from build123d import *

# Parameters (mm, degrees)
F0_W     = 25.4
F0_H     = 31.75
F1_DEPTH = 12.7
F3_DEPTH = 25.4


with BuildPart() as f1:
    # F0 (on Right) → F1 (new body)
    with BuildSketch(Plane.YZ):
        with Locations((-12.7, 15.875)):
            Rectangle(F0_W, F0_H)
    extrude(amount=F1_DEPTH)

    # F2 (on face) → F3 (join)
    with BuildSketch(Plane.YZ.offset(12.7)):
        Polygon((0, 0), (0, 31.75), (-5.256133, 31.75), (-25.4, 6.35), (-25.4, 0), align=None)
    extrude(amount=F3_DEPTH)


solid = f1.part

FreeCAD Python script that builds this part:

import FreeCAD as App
import Part
import Sketcher
from FreeCAD import Vector
Q = App.Units.Quantity

doc = App.newDocument("Part")
body = doc.addObject("PartDesign::Body", "Body")

# Sketch on YZ plane
sketch1 = body.newObject("Sketcher::SketchObject", "Sketch")
sketch1.AttachmentSupport = (doc.getObject("YZ_Plane"), [""])
sketch1.MapMode = "FlatFace"
sketch1.addGeometry([
    Part.LineSegment(Vector(-25, 32, 0), Vector(-25, 0, 0)),
    Part.LineSegment(Vector(-25, 0, 0), Vector(0, 0, 0)),
    Part.LineSegment(Vector(0, 0, 0), Vector(0, 32, 0)),
    Part.LineSegment(Vector(0, 32, 0), Vector(-25, 32, 0)),
], False)
sketch1.addConstraint([
    Sketcher.Constraint("Coincident", 0, 2, 1, 1),
    Sketcher.Constraint("Coincident", 1, 2, 2, 1),
    Sketcher.Constraint("Coincident", 2, 2, 3, 1),
    Sketcher.Constraint("Coincident", 3, 2, 0, 1),
    Sketcher.Constraint("Vertical", 0),
    Sketcher.Constraint("Horizontal", 1),
    Sketcher.Constraint("Vertical", 2),
    Sketcher.Constraint("Horizontal", 3),
    Sketcher.Constraint("Coincident", 1, 2, -1, 1),
    Sketcher.Constraint("DistanceX", 1, 1, 1, 2, Q("1 in")),
    Sketcher.Constraint("DistanceY", 0, 2, 0, 1, Q("1.25 in")),
])
pad1 = body.newObject("PartDesign::Pad", "Pad")
pad1.Profile = sketch1
pad1.Length = Q("0.5 in")

# Sketch on YZ plane
sketch2 = body.newObject("Sketcher::SketchObject", "Sketch001")
sketch2.AttachmentSupport = (doc.getObject("YZ_Plane"), [""])
sketch2.MapMode = "FlatFace"
sketch2.AttachmentOffset = App.Placement(Vector(0, 0, 0.5 * 25.4), App.Rotation())
sketch2.addGeometry([
    Part.LineSegment(Vector(0, 0, 0), Vector(0, 32, 0)),  # 0
    Part.LineSegment(Vector(0, 32, 0), Vector(-5, 32, 0)),  # 1
    Part.LineSegment(Vector(-5, 32, 0), Vector(-25, 6, 0)),  # 2
    Part.LineSegment(Vector(-25, 6, 0), Vector(-25, 0, 0)),  # 3
    Part.LineSegment(Vector(-25, 0, 0), Vector(0, 0, 0)),  # 4
], False)
sketch2.addConstraint([
    Sketcher.Constraint("Coincident", 0, 2, 1, 1),
    Sketcher.Constraint("Coincident", 1, 2, 2, 1),
    Sketcher.Constraint("Coincident", 2, 2, 3, 1),
    Sketcher.Constraint("Coincident", 3, 2, 4, 1),
    Sketcher.Constraint("Coincident", 4, 2, 0, 1),
    Sketcher.Constraint("Vertical", 0),
    Sketcher.Constraint("Horizontal", 1),
    Sketcher.Constraint("Vertical", 3),
    Sketcher.Constraint("Horizontal", 4),
    Sketcher.Constraint("Coincident", 4, 2, -1, 1),
    Sketcher.Constraint("DistanceX", 4, 1, 4, 2, Q("1 in")),
    Sketcher.Constraint("DistanceY", 2, 2, 1, 2, Q("1 in")),
    Sketcher.Constraint("DistanceY", 0, 1, 0, 2, Q("1.25 in")),
    Sketcher.Constraint("DistanceX", 1, 2, 1, 1, Q("5.256133 mm")),
])
pad2 = body.newObject("PartDesign::Pad", "Pad001")
pad2.Profile = sketch2
pad2.Length = Q("1 in")

doc.recompute()
